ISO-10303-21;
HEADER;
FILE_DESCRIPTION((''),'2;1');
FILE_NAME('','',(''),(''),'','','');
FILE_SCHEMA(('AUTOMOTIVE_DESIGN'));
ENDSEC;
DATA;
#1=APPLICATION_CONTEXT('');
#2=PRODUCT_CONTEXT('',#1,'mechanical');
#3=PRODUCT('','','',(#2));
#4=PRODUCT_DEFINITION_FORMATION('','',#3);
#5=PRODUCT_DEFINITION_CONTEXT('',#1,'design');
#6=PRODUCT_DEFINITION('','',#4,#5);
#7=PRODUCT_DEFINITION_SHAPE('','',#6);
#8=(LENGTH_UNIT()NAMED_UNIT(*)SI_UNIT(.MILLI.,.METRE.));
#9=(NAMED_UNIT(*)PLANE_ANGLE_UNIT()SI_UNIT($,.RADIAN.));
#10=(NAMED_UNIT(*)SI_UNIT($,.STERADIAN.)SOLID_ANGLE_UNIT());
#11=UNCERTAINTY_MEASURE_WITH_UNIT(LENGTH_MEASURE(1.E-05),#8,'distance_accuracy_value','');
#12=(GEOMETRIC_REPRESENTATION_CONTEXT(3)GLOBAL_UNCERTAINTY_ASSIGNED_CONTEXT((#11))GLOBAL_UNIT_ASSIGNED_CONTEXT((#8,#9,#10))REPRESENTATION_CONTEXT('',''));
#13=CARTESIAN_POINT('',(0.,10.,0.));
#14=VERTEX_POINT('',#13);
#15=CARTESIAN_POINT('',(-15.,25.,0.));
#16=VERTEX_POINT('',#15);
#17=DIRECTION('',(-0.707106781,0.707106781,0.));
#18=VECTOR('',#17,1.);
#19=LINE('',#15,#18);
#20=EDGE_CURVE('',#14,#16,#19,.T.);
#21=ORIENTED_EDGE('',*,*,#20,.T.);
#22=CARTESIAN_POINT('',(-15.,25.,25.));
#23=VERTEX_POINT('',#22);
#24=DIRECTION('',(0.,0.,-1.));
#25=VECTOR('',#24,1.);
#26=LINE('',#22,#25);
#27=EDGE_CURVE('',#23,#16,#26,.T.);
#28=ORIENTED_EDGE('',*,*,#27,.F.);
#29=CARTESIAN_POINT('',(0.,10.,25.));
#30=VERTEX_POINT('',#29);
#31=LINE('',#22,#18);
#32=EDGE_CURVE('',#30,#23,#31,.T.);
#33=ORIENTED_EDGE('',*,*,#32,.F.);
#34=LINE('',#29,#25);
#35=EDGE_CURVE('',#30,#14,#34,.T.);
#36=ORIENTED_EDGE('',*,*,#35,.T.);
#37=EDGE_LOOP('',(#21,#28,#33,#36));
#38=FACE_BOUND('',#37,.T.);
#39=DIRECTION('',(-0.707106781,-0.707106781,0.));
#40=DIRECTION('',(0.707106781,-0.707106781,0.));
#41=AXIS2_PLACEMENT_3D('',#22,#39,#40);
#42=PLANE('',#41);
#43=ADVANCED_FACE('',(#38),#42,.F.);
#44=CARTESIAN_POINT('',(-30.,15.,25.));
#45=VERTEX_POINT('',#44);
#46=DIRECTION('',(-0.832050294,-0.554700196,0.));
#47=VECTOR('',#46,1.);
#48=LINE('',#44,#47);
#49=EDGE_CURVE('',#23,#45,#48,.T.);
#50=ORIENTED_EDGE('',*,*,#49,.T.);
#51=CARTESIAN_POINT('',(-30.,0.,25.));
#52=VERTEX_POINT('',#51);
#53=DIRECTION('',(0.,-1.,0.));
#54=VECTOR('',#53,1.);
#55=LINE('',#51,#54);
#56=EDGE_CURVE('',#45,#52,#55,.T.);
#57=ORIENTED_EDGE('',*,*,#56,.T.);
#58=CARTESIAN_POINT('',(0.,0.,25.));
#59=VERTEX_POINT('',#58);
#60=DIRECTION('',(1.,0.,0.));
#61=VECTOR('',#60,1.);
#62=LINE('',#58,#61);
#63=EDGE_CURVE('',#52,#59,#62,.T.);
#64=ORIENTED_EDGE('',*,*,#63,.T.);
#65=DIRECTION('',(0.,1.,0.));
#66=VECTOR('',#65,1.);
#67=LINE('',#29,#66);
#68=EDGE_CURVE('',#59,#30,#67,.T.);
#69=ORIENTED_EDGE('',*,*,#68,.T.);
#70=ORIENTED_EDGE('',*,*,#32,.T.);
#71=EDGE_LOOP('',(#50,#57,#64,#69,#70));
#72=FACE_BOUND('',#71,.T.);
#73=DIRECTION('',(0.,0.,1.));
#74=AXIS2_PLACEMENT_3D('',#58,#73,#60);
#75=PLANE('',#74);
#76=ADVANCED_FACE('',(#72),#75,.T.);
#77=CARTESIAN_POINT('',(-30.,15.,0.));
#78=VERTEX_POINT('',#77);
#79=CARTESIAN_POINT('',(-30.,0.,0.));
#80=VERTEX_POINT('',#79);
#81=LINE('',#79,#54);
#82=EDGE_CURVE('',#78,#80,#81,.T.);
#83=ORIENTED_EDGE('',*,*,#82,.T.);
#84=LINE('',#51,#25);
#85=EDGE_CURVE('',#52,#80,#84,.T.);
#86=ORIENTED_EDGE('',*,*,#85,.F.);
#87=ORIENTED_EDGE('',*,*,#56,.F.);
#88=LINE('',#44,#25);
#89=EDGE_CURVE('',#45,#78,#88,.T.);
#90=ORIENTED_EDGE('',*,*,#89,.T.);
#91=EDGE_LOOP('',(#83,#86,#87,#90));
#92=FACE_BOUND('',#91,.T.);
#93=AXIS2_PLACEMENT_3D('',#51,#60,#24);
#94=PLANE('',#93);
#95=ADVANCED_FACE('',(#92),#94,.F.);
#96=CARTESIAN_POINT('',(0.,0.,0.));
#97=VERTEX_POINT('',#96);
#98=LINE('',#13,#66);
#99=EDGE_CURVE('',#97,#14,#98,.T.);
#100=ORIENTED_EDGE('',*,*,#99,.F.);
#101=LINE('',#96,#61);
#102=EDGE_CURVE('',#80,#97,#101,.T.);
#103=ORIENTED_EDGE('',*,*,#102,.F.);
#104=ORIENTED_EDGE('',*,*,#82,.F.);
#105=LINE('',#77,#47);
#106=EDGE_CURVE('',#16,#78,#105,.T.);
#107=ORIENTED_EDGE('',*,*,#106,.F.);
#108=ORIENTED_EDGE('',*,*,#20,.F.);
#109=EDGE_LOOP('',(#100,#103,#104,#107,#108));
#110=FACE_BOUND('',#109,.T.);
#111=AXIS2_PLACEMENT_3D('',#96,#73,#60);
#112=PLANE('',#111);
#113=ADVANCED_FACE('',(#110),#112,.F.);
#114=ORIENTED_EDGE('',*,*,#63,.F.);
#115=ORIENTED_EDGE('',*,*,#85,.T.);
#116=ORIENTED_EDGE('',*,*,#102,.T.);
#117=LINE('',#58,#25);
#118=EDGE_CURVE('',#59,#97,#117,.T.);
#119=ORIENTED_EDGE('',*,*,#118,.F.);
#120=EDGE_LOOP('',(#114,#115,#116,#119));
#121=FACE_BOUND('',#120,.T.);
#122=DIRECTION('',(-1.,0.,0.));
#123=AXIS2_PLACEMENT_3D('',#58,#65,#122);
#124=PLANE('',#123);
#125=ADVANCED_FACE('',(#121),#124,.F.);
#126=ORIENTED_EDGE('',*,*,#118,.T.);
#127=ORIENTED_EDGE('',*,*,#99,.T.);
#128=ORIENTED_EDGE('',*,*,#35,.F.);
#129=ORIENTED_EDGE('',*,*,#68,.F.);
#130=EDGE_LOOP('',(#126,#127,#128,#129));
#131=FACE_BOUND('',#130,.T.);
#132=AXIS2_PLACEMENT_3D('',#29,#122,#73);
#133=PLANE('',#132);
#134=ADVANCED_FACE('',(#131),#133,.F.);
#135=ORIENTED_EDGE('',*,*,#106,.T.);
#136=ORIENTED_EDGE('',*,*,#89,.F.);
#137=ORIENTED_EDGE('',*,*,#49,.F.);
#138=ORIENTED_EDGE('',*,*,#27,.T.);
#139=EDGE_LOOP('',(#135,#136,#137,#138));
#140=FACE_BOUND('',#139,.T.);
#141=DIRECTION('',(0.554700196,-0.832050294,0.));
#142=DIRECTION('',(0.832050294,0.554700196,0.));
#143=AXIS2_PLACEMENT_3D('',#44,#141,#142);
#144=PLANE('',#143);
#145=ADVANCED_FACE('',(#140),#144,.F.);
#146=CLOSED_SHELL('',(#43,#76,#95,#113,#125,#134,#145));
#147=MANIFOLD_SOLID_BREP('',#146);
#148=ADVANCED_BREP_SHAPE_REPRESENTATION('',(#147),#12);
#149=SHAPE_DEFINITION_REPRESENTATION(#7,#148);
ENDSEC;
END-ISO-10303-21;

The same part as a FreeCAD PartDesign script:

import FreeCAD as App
import Part
import Sketcher
from FreeCAD import Vector
Q = App.Units.Quantity

doc = App.newDocument("Part")
body = doc.addObject("PartDesign::Body", "Body")

# Sketch on XY plane
sketch1 = body.newObject("Sketcher::SketchObject", "Sketch")
sketch1.AttachmentSupport = (doc.getObject("XY_Plane"), [""])
sketch1.MapMode = "FlatFace"
sketch1.addGeometry(Part.LineSegment(Vector(-15, 25, 0), Vector(-30, 15, 0)), False)
sketch1.addGeometry(Part.LineSegment(Vector(-30, 15, 0), Vector(-30, 0, 0)), False)
sketch1.addGeometry(Part.LineSegment(Vector(-30, 0, 0), Vector(0, 0, 0)), False)
sketch1.addGeometry(Part.LineSegment(Vector(0, 0, 0), Vector(0, 10, 0)), False)
sketch1.addGeometry(Part.LineSegment(Vector(0, 10, 0), Vector(-15, 25, 0)), False)
sketch1.addConstraint(Sketcher.Constraint("Coincident", 0, 2, 1, 1))
sketch1.addConstraint(Sketcher.Constraint("Coincident", 1, 2, 2, 1))
sketch1.addConstraint(Sketcher.Constraint("Coincident", 2, 2, 3, 1))
sketch1.addConstraint(Sketcher.Constraint("Coincident", 3, 2, 4, 1))
sketch1.addConstraint(Sketcher.Constraint("Coincident", 4, 2, 0, 1))
sketch1.addConstraint(Sketcher.Constraint("Vertical", 1))
sketch1.addConstraint(Sketcher.Constraint("Horizontal", 2))
sketch1.addConstraint(Sketcher.Constraint("Vertical", 3))
sketch1.addConstraint(Sketcher.Constraint("Coincident", 2, 2, -1, 1))
sketch1.addConstraint(Sketcher.Constraint("DistanceX", 2, 1, 2, 2, 30.0))
sketch1.addConstraint(Sketcher.Constraint("DistanceY", 1, 2, 1, 1, 15.0))
sketch1.addConstraint(Sketcher.Constraint("DistanceY", 3, 1, 3, 2, 10.0))
sketch1.addConstraint(Sketcher.Constraint("Angle", 4, Q("135 deg")))
sketch1.addConstraint(Sketcher.Constraint("DistanceX", 4, 2, -1, 1, 15.0))
pad1 = body.newObject("PartDesign::Pad", "Pad")
pad1.Profile = sketch1
pad1.Length = 25

doc.recompute()
